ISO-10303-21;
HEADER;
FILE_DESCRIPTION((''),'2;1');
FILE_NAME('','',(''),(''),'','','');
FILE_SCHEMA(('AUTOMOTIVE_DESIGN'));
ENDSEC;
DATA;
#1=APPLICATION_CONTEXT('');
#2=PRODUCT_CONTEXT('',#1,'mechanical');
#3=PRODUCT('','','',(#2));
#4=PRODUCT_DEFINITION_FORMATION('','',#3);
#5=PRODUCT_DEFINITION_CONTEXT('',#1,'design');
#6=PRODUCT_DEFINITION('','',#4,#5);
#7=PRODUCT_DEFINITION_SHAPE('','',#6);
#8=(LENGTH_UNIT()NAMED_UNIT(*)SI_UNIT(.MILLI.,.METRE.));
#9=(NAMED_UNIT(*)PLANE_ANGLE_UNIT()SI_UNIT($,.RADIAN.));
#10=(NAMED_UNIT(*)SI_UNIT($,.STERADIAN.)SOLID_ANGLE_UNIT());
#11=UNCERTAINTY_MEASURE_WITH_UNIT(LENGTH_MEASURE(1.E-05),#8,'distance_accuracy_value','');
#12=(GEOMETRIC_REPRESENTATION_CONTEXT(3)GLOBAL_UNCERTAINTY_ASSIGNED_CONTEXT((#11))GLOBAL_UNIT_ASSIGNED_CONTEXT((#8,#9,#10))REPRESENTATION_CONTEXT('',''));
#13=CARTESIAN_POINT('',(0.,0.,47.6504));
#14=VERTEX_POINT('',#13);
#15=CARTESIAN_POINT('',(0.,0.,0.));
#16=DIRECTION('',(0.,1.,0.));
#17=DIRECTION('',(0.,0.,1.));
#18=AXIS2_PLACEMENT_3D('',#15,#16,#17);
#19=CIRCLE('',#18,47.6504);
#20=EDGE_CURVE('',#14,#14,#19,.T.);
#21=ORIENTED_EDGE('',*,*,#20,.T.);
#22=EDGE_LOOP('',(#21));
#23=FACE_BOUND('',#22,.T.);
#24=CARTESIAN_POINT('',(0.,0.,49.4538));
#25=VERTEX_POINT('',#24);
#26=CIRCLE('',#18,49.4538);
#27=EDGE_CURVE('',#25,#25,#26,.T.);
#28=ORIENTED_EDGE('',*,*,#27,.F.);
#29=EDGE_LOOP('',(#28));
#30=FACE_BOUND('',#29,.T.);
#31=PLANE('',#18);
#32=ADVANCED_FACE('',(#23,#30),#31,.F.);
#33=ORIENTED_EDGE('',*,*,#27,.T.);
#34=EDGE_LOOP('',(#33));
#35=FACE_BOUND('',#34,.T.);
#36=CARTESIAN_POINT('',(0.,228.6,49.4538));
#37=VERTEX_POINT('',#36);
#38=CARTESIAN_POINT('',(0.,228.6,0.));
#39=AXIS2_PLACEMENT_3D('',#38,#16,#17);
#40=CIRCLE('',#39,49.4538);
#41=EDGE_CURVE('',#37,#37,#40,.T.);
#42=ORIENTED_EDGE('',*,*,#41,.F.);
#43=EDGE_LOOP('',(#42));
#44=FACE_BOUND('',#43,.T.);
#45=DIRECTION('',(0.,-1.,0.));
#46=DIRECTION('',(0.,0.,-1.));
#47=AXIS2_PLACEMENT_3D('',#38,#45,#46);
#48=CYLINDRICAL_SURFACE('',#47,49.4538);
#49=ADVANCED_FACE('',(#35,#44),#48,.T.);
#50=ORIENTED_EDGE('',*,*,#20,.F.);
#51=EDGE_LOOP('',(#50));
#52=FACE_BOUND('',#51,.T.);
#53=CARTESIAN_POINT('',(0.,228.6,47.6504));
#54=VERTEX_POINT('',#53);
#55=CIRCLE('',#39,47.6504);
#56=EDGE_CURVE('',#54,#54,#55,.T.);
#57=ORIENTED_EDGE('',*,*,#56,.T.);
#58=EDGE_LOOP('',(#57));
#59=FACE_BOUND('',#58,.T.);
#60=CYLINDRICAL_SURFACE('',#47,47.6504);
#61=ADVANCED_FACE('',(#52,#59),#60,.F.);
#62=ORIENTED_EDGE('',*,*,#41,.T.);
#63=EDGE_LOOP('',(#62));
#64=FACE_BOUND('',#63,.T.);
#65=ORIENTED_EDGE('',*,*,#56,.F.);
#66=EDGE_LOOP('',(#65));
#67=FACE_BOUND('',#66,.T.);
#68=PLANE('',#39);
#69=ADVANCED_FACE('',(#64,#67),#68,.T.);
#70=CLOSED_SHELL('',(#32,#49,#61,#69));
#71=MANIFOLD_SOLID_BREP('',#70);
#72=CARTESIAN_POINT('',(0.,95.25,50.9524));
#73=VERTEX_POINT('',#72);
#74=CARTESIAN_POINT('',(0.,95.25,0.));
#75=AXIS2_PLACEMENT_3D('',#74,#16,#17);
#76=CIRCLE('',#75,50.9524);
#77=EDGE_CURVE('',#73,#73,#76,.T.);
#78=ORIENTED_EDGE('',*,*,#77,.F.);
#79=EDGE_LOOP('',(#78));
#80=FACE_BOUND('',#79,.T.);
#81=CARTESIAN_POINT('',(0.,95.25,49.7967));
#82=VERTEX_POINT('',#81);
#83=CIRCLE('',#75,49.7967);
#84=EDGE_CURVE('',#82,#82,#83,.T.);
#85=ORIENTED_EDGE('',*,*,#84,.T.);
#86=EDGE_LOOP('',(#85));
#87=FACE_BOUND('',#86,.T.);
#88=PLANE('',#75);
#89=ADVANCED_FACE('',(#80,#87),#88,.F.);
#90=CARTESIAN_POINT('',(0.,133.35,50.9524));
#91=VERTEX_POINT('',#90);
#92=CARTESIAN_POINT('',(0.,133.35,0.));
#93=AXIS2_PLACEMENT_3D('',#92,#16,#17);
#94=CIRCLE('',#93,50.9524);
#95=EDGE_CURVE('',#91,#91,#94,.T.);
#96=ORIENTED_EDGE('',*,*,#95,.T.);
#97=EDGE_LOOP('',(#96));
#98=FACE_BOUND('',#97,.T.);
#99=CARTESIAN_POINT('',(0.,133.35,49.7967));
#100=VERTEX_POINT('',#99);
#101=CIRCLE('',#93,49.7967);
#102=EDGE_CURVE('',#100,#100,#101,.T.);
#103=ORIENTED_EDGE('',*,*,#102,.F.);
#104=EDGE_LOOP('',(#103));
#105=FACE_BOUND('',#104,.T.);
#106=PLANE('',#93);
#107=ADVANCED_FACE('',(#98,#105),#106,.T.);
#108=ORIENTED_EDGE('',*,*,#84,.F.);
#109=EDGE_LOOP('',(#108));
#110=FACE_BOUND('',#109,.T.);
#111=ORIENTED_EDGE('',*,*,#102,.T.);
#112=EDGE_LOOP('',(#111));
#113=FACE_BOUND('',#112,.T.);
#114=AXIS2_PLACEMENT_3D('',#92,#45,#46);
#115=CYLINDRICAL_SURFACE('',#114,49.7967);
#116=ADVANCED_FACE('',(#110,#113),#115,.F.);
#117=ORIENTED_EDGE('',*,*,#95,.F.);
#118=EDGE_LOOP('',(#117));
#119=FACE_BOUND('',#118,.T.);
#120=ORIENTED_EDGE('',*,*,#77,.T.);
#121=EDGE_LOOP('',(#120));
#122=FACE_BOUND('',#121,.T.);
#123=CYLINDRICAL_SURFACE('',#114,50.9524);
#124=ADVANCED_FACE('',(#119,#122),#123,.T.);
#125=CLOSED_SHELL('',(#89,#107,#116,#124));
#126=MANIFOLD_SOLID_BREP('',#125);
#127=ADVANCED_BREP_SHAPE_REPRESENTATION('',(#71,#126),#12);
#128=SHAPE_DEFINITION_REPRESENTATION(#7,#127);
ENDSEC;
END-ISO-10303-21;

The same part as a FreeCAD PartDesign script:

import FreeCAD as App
import Part
import Sketcher

V = App.Vector
Q = App.Units.Quantity

doc = App.newDocument("Part")
body = doc.addObject("PartDesign::Body", "Body")

# Sketch on XZ plane
sketch1 = body.newObject("Sketcher::SketchObject", "Sketch")
sketch1.AttachmentSupport = (doc.getObject("XZ_Plane"), [""])
sketch1.MapMode = "FlatFace"
sketch1.addGeometry(Part.Circle(V(0, 0, 0), V(0, 0, 1), 49), False)
sketch1.addGeometry(Part.Circle(V(0, 0, 0), V(0, 0, 1), 48), False)
sketch1.addConstraint(Sketcher.Constraint("Coincident", 0, 3, -1, 1))
sketch1.addConstraint(Sketcher.Constraint("Coincident", 1, 3, -1, 1))
sketch1.addConstraint(Sketcher.Constraint("Diameter", 0, Q("3.894 in")))
sketch1.addConstraint(Sketcher.Constraint("Diameter", 1, Q("3.752 in")))
pad1 = body.newObject("PartDesign::Pad", "Pad")
pad1.Profile = sketch1
pad1.Length = Q("9 in")
pad1.Reversed = True
body2 = doc.addObject("PartDesign::Body", "Body001")

# Sketch on XZ plane
sketch2 = body2.newObject("Sketcher::SketchObject", "Sketch001")
sketch2.AttachmentSupport = (doc.getObject("XZ_Plane001"), [""])
sketch2.MapMode = "FlatFace"
sketch2.AttachmentOffset = App.Placement(V(0, 0, -3.75 * 25.4), App.Rotation())
sketch2.addGeometry(Part.Circle(V(0, 0, 0), V(0, 0, 1), 51), False)
sketch2.addGeometry(Part.Circle(V(0, 0, 0), V(0, 0, 1), 50), False)
sketch2.addConstraint(Sketcher.Constraint("Coincident", 0, 3, -1, 1))
sketch2.addConstraint(Sketcher.Constraint("Coincident", 1, 3, -1, 1))
sketch2.addConstraint(Sketcher.Constraint("Diameter", 0, Q("4.012 in")))
sketch2.addConstraint(Sketcher.Constraint("Diameter", 1, Q("3.921 in")))
pad2 = body2.newObject("PartDesign::Pad", "Pad001")
pad2.Profile = sketch2
pad2.Length = Q("1.5 in")
pad2.Reversed = True

doc.recompute()
